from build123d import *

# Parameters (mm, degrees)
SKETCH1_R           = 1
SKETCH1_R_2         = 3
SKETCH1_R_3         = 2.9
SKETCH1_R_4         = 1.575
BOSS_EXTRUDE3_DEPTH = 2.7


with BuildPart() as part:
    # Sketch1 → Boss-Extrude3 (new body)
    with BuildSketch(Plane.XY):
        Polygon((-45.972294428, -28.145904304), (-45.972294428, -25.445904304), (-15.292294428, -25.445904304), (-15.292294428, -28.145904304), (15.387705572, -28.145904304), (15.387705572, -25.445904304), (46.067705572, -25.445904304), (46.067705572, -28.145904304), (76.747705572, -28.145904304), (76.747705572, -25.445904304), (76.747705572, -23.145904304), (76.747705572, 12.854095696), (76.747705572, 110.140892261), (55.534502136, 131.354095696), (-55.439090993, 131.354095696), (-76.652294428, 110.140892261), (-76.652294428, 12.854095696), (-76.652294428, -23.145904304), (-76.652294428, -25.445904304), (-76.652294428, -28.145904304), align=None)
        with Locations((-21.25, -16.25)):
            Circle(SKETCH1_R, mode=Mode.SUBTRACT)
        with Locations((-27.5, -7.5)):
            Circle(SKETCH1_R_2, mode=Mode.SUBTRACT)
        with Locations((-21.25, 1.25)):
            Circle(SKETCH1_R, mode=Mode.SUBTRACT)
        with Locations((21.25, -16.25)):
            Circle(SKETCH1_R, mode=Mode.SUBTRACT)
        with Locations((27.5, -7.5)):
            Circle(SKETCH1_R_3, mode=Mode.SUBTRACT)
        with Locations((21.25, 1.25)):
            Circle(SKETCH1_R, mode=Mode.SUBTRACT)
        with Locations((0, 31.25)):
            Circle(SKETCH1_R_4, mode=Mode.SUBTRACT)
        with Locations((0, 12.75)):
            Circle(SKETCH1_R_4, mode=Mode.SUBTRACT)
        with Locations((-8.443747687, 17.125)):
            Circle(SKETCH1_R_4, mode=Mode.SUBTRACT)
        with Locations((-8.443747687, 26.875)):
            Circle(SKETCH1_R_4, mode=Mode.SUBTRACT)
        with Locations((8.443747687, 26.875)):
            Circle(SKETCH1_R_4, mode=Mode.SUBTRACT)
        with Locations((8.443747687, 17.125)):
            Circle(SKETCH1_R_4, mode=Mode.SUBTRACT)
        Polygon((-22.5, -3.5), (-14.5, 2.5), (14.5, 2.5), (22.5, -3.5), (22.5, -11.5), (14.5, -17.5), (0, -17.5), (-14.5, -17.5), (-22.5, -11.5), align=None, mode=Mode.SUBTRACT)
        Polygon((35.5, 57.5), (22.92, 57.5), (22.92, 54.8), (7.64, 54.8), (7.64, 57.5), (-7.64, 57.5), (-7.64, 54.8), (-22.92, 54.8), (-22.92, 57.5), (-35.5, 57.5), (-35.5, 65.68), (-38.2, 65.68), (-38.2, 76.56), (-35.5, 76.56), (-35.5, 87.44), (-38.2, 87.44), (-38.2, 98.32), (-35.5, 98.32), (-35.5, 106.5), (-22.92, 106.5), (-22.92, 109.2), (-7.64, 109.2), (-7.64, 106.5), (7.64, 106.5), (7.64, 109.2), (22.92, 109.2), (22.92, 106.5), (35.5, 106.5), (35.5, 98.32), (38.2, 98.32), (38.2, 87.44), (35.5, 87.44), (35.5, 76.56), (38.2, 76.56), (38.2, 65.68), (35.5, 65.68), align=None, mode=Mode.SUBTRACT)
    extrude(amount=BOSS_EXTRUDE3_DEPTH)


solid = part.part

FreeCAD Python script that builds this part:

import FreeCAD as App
import Part
import Sketcher
Q = App.Units.Quantity

doc = App.newDocument("Part")
body = doc.addObject("PartDesign::Body", "Body")

sketch1 = body.newObject("Sketcher::SketchObject", "Sketch")
sketch1.AttachmentSupport = (doc.getObject("XY_Plane"), [""])
sketch1.MapMode = "FlatFace"
sketch1.addGeometry([
    Part.LineSegment(App.Vector(-46, -28.1, 0), App.Vector(-46, -25.4, 0)),
    Part.LineSegment(App.Vector(-46, -25.4, 0), App.Vector(-15.3, -25.4, 0)),
    Part.LineSegment(App.Vector(-15.3, -25.4, 0), App.Vector(-15.3, -28.1, 0)),
    Part.LineSegment(App.Vector(-15.3, -28.1, 0), App.Vector(15.4, -28.1, 0)),
    Part.LineSegment(App.Vector(15.4, -28.1, 0), App.Vector(15.4, -25.4, 0)),
    Part.LineSegment(App.Vector(15.4, -25.4, 0), App.Vector(46.1, -25.4, 0)),
    Part.LineSegment(App.Vector(46.1, -25.4, 0), App.Vector(46.1, -28.1, 0)),
    Part.LineSegment(App.Vector(46.1, -28.1, 0), App.Vector(76.7, -28.1, 0)),
    Part.LineSegment(App.Vector(76.7, -28.1, 0), App.Vector(76.7, 110.1, 0)),
    Part.LineSegment(App.Vector(76.7, 110.1, 0), App.Vector(55.5, 131.4, 0)),
    Part.LineSegment(App.Vector(55.5, 131.4, 0), App.Vector(-55.4, 131.4, 0)),
    Part.LineSegment(App.Vector(-55.4, 131.4, 0), App.Vector(-76.7, 110.1, 0)),
    Part.LineSegment(App.Vector(-76.7, 110.1, 0), App.Vector(-76.7, -28.1, 0)),
    Part.LineSegment(App.Vector(-76.7, -28.1, 0), App.Vector(-46, -28.1, 0)),
    Part.Circle(App.Vector(-21.2, -16.2, 0), App.Vector(0, 0, 1), 1),
    Part.Circle(App.Vector(-27.5, -7.5, 0), App.Vector(0, 0, 1), 3),
    Part.Circle(App.Vector(-21.2, 1.2, 0), App.Vector(0, 0, 1), 1),
    Part.LineSegment(App.Vector(-22.5, -11.5, 0), App.Vector(-22.5, -3.5, 0)),
    Part.LineSegment(App.Vector(-22.5, -3.5, 0), App.Vector(-14.5, 2.5, 0)),
    Part.LineSegment(App.Vector(-14.5, 2.5, 0), App.Vector(14.5, 2.5, 0)),
    Part.LineSegment(App.Vector(14.5, 2.5, 0), App.Vector(22.5, -3.5, 0)),
    Part.LineSegment(App.Vector(22.5, -3.5, 0), App.Vector(22.5, -11.5, 0)),
    Part.LineSegment(App.Vector(22.5, -11.5, 0), App.Vector(14.5, -17.5, 0)),
    Part.LineSegment(App.Vector(14.5, -17.5, 0), App.Vector(-14.5, -17.5, 0)),
    Part.LineSegment(App.Vector(-14.5, -17.5, 0), App.Vector(-22.5, -11.5, 0)),
    Part.Circle(App.Vector(0, 12.8, 0), App.Vector(0, 0, 1), 1.6),
    Part.Circle(App.Vector(-8.4, 17.1, 0), App.Vector(0, 0, 1), 1.6),
    Part.Circle(App.Vector(-8.4, 26.9, 0), App.Vector(0, 0, 1), 1.6),
    Part.Circle(App.Vector(0, 31.2, 0), App.Vector(0, 0, 1), 1.6),
    Part.Circle(App.Vector(21.2, -16.2, 0), App.Vector(0, 0, 1), 1),
    Part.Circle(App.Vector(27.5, -7.5, 0), App.Vector(0, 0, 1), 2.9),
    Part.Circle(App.Vector(21.2, 1.2, 0), App.Vector(0, 0, 1), 1),
    Part.Circle(App.Vector(8.4, 17.1, 0), App.Vector(0, 0, 1), 1.6),
    Part.Circle(App.Vector(8.4, 26.9, 0), App.Vector(0, 0, 1), 1.6),
    Part.LineSegment(App.Vector(35.5, 65.7, 0), App.Vector(35.5, 57.5, 0)),
    Part.LineSegment(App.Vector(35.5, 57.5, 0), App.Vector(22.9, 57.5, 0)),
    Part.LineSegment(App.Vector(22.9, 57.5, 0), App.Vector(22.9, 54.8, 0)),
    Part.LineSegment(App.Vector(22.9, 54.8, 0), App.Vector(7.6, 54.8, 0)),
    Part.LineSegment(App.Vector(7.6, 54.8, 0), App.Vector(7.6, 57.5, 0)),
    Part.LineSegment(App.Vector(7.6, 57.5, 0), App.Vector(-7.6, 57.5, 0)),
    Part.LineSegment(App.Vector(-7.6, 57.5, 0), App.Vector(-7.6, 54.8, 0)),
    Part.LineSegment(App.Vector(-7.6, 54.8, 0), App.Vector(-22.9, 54.8, 0)),
    Part.LineSegment(App.Vector(-22.9, 54.8, 0), App.Vector(-22.9, 57.5, 0)),
    Part.LineSegment(App.Vector(-22.9, 57.5, 0), App.Vector(-35.5, 57.5, 0)),
    Part.LineSegment(App.Vector(-35.5, 57.5, 0), App.Vector(-35.5, 65.7, 0)),
    Part.LineSegment(App.Vector(-35.5, 65.7, 0), App.Vector(-38.2, 65.7, 0)),
    Part.LineSegment(App.Vector(-38.2, 65.7, 0), App.Vector(-38.2, 76.6, 0)),
    Part.LineSegment(App.Vector(-38.2, 76.6, 0), App.Vector(-35.5, 76.6, 0)),
    Part.LineSegment(App.Vector(-35.5, 76.6, 0), App.Vector(-35.5, 87.4, 0)),
    Part.LineSegment(App.Vector(-35.5, 87.4, 0), App.Vector(-38.2, 87.4, 0)),
    Part.LineSegment(App.Vector(-38.2, 87.4, 0), App.Vector(-38.2, 98.3, 0)),
    Part.LineSegment(App.Vector(-38.2, 98.3, 0), App.Vector(-35.5, 98.3, 0)),
    Part.LineSegment(App.Vector(-35.5, 98.3, 0), App.Vector(-35.5, 106.5, 0)),
    Part.LineSegment(App.Vector(-35.5, 106.5, 0), App.Vector(-22.9, 106.5, 0)),
    Part.LineSegment(App.Vector(-22.9, 106.5, 0), App.Vector(-22.9, 109.2, 0)),
    Part.LineSegment(App.Vector(-22.9, 109.2, 0), App.Vector(-7.6, 109.2, 0)),
    Part.LineSegment(App.Vector(-7.6, 109.2, 0), App.Vector(-7.6, 106.5, 0)),
    Part.LineSegment(App.Vector(-7.6, 106.5, 0), App.Vector(7.6, 106.5, 0)),
    Part.LineSegment(App.Vector(7.6, 106.5, 0), App.Vector(7.6, 109.2, 0)),
    Part.LineSegment(App.Vector(7.6, 109.2, 0), App.Vector(22.9, 109.2, 0)),
    Part.LineSegment(App.Vector(22.9, 109.2, 0), App.Vector(22.9, 106.5, 0)),
    Part.LineSegment(App.Vector(22.9, 106.5, 0), App.Vector(35.5, 106.5, 0)),
    Part.LineSegment(App.Vector(35.5, 106.5, 0), App.Vector(35.5, 98.3, 0)),
    Part.LineSegment(App.Vector(35.5, 98.3, 0), App.Vector(38.2, 98.3, 0)),
    Part.LineSegment(App.Vector(38.2, 98.3, 0), App.Vector(38.2, 87.4, 0)),
    Part.LineSegment(App.Vector(38.2, 87.4, 0), App.Vector(35.5, 87.4, 0)),
    Part.LineSegment(App.Vector(35.5, 87.4, 0), App.Vector(35.5, 76.6, 0)),
    Part.LineSegment(App.Vector(35.5, 76.6, 0), App.Vector(38.2, 76.6, 0)),
    Part.LineSegment(App.Vector(38.2, 76.6, 0), App.Vector(38.2, 65.7, 0)),
    Part.LineSegment(App.Vector(38.2, 65.7, 0), App.Vector(35.5, 65.7, 0)),
], False)
sketch1.addConstraint([
    Sketcher.Constraint("Coincident", 0, 2, 1, 1),
    Sketcher.Constraint("Coincident", 1, 2, 2, 1),
    Sketcher.Constraint("Coincident", 2, 2, 3, 1),
    Sketcher.Constraint("Coincident", 3, 2, 4, 1),
    Sketcher.Constraint("Coincident", 4, 2, 5, 1),
    Sketcher.Constraint("Coincident", 5, 2, 6, 1),
    Sketcher.Constraint("Coincident", 6, 2, 7, 1),
    Sketcher.Constraint("Coincident", 7, 2, 8, 1),
    Sketcher.Constraint("Coincident", 8, 2, 9, 1),
    Sketcher.Constraint("Coincident", 9, 2, 10, 1),
    Sketcher.Constraint("Coincident", 10, 2, 11, 1),
    Sketcher.Constraint("Coincident", 11, 2, 12, 1),
    Sketcher.Constraint("Coincident", 12, 2, 13, 1),
    Sketcher.Constraint("Coincident", 13, 2, 0, 1),
    Sketcher.Constraint("Coincident", 17, 2, 18, 1),
    Sketcher.Constraint("Coincident", 18, 2, 19, 1),
    Sketcher.Constraint("Coincident", 19, 2, 20, 1),
    Sketcher.Constraint("Coincident", 20, 2, 21, 1),
    Sketcher.Constraint("Coincident", 21, 2, 22, 1),
    Sketcher.Constraint("Coincident", 22, 2, 23, 1),
    Sketcher.Constraint("Coincident", 23, 2, 24, 1),
    Sketcher.Constraint("Coincident", 24, 2, 17, 1),
    Sketcher.Constraint("Coincident", 34, 2, 35, 1),
    Sketcher.Constraint("Coincident", 35, 2, 36, 1),
    Sketcher.Constraint("Coincident", 36, 2, 37, 1),
    Sketcher.Constraint("Coincident", 37, 2, 38, 1),
    Sketcher.Constraint("Coincident", 38, 2, 39, 1),
    Sketcher.Constraint("Coincident", 39, 2, 40, 1),
    Sketcher.Constraint("Coincident", 40, 2, 41, 1),
    Sketcher.Constraint("Coincident", 41, 2, 42, 1),
    Sketcher.Constraint("Coincident", 42, 2, 43, 1),
    Sketcher.Constraint("Coincident", 43, 2, 44, 1),
    Sketcher.Constraint("Coincident", 44, 2, 45, 1),
    Sketcher.Constraint("Coincident", 45, 2, 46, 1),
    Sketcher.Constraint("Coincident", 46, 2, 47, 1),
    Sketcher.Constraint("Coincident", 47, 2, 48, 1),
    Sketcher.Constraint("Coincident", 48, 2, 49, 1),
    Sketcher.Constraint("Coincident", 49, 2, 50, 1),
    Sketcher.Constraint("Coincident", 50, 2, 51, 1),
    Sketcher.Constraint("Coincident", 51, 2, 52, 1),
    Sketcher.Constraint("Coincident", 52, 2, 53, 1),
    Sketcher.Constraint("Coincident", 53, 2, 54, 1),
    Sketcher.Constraint("Coincident", 54, 2, 55, 1),
    Sketcher.Constraint("Coincident", 55, 2, 56, 1),
    Sketcher.Constraint("Coincident", 56, 2, 57, 1),
    Sketcher.Constraint("Coincident", 57, 2, 58, 1),
    Sketcher.Constraint("Coincident", 58, 2, 59, 1),
    Sketcher.Constraint("Coincident", 59, 2, 60, 1),
    Sketcher.Constraint("Coincident", 60, 2, 61, 1),
    Sketcher.Constraint("Coincident", 61, 2, 62, 1),
    Sketcher.Constraint("Coincident", 62, 2, 63, 1),
    Sketcher.Constraint("Coincident", 63, 2, 64, 1),
    Sketcher.Constraint("Coincident", 64, 2, 65, 1),
    Sketcher.Constraint("Coincident", 65, 2, 66, 1),
    Sketcher.Constraint("Coincident", 66, 2, 67, 1),
    Sketcher.Constraint("Coincident", 67, 2, 68, 1),
    Sketcher.Constraint("Coincident", 68, 2, 69, 1),
    Sketcher.Constraint("Coincident", 69, 2, 34, 1),
    Sketcher.Constraint("Vertical", 0),
    Sketcher.Constraint("Horizontal", 1),
    Sketcher.Constraint("Vertical", 2),
    Sketcher.Constraint("Horizontal", 3),
    Sketcher.Constraint("Vertical", 4),
    Sketcher.Constraint("Horizontal", 5),
    Sketcher.Constraint("Vertical", 6),
    Sketcher.Constraint("Horizontal", 7),
    Sketcher.Constraint("Vertical", 8),
    Sketcher.Constraint("Horizontal", 10),
    Sketcher.Constraint("Vertical", 12),
    Sketcher.Constraint("Horizontal", 13),
    Sketcher.Constraint("Vertical", 17),
    Sketcher.Constraint("Horizontal", 19),
    Sketcher.Constraint("Vertical", 21),
    Sketcher.Constraint("Horizontal", 23),
    Sketcher.Constraint("Vertical", 34),
    Sketcher.Constraint("Horizontal", 35),
    Sketcher.Constraint("Vertical", 36),
    Sketcher.Constraint("Horizontal", 37),
    Sketcher.Constraint("Vertical", 38),
    Sketcher.Constraint("Horizontal", 39),
    Sketcher.Constraint("Vertical", 40),
    Sketcher.Constraint("Horizontal", 41),
    Sketcher.Constraint("Vertical", 42),
    Sketcher.Constraint("Horizontal", 43),
    Sketcher.Constraint("Vertical", 44),
    Sketcher.Constraint("Horizontal", 45),
    Sketcher.Constraint("Vertical", 46),
    Sketcher.Constraint("Horizontal", 47),
    Sketcher.Constraint("Vertical", 48),
    Sketcher.Constraint("Horizontal", 49),
    Sketcher.Constraint("Vertical", 50),
    Sketcher.Constraint("Horizontal", 51),
    Sketcher.Constraint("Vertical", 52),
    Sketcher.Constraint("Horizontal", 53),
    Sketcher.Constraint("Vertical", 54),
    Sketcher.Constraint("Horizontal", 55),
    Sketcher.Constraint("Vertical", 56),
    Sketcher.Constraint("Horizontal", 57),
    Sketcher.Constraint("Vertical", 58),
    Sketcher.Constraint("Horizontal", 59),
    Sketcher.Constraint("Vertical", 60),
    Sketcher.Constraint("Horizontal", 61),
    Sketcher.Constraint("Vertical", 62),
    Sketcher.Constraint("Horizontal", 63),
    Sketcher.Constraint("Vertical", 64),
    Sketcher.Constraint("Horizontal", 65),
    Sketcher.Constraint("Vertical", 66),
    Sketcher.Constraint("Horizontal", 67),
    Sketcher.Constraint("Vertical", 68),
    Sketcher.Constraint("Horizontal", 69),
    Sketcher.Constraint("Equal", 14, 16),
    Sketcher.Constraint("Equal", 25, 26),
    Sketcher.Constraint("Equal", 26, 27),
    Sketcher.Constraint("Equal", 27, 28),
    Sketcher.Constraint("Equal", 16, 29),
    Sketcher.Constraint("Equal", 29, 31),
    Sketcher.Constraint("Equal", 28, 32),
    Sketcher.Constraint("Equal", 32, 33),
    Sketcher.Constraint("Symmetric", 14, 3, 29, 3, -2),
    Sketcher.Constraint("Symmetric", 15, 3, 30, 3, -2),
    Sketcher.Constraint("Symmetric", 16, 3, 31, 3, -2),
    Sketcher.Constraint("Symmetric", 26, 3, 32, 3, -2),
    Sketcher.Constraint("Symmetric", 27, 3, 33, 3, -2),
    Sketcher.Constraint("Symmetric", 17, 2, 20, 2, -2),
    Sketcher.Constraint("Symmetric", 37, 2, 40, 2, -2),
    Sketcher.Constraint("Symmetric", 35, 2, 42, 2, -2),
    Sketcher.Constraint("Symmetric", 55, 2, 58, 2, -2),
    Sketcher.Constraint("Symmetric", 53, 2, 60, 2, -2),
    Sketcher.Constraint("Symmetric", 51, 2, 62, 2, -2),
    Sketcher.Constraint("Symmetric", 49, 2, 64, 2, -2),
    Sketcher.Constraint("Symmetric", 47, 2, 66, 2, -2),
    Sketcher.Constraint("Symmetric", 45, 2, 68, 2, -2),
    Sketcher.Constraint("PointOnObject", 25, 3, -2),
    Sketcher.Constraint("PointOnObject", 28, 3, -2),
    Sketcher.Constraint("Perpendicular", 9, 11),
    Sketcher.Constraint("Parallel", 18, 22),
    Sketcher.Constraint("Parallel", 20, 24),
    Sketcher.Constraint("Horizontal", 1, 2, 4, 2),
    Sketcher.Constraint("Horizontal", 3, 2, 6, 2),
    Sketcher.Constraint("Horizontal", 8, 2, 11, 2),
    Sketcher.Constraint("Horizontal", 7, 2, 12, 2),
    Sketcher.Constraint("Horizontal", 21, 2, 24, 2),
    Sketcher.Constraint("Horizontal", 35, 2, 38, 2),
    Sketcher.Constraint("Horizontal", 53, 2, 56, 2),
    Sketcher.Constraint("Vertical", 14, 3, 16, 3),
    Sketcher.Constraint("Vertical", 26, 3, 27, 3),
    Sketcher.Constraint("Vertical", 19, 2, 22, 2),
    Sketcher.Constraint("Vertical", 18, 2, 23, 2),
    Sketcher.Constraint("Vertical", 44, 2, 47, 2),
    Sketcher.Constraint("Vertical", 46, 2, 49, 2),
    Sketcher.Constraint("Vertical", 48, 2, 51, 2),
    Sketcher.Constraint("Vertical", 42, 2, 53, 2),
    Sketcher.Constraint("Vertical", 40, 2, 55, 2),
    Sketcher.Constraint("Vertical", 34, 2, 61, 2),
    Sketcher.Constraint("Equal", 1, 3),
    Sketcher.Constraint("Equal", 3, 5),
    Sketcher.Constraint("Equal", 5, 7),
    Sketcher.Constraint("Equal", 7, 13),
    Sketcher.Constraint("Equal", 37, 39),
    Sketcher.Constraint("Equal", 69, 0),
    Sketcher.Constraint("Equal", 6, 36),
    Sketcher.Constraint("Equal", 46, 48),
    Sketcher.Constraint("Equal", 48, 50),
    Sketcher.Constraint("Equal", 44, 52),
    Sketcher.Constraint("Equal", 42, 54),
    Sketcher.Constraint("Equal", 9, 11),
    Sketcher.Constraint("Diameter", 14, Q("2 mm")),
    Sketcher.Constraint("Diameter", 15, Q("6 mm")),
    Sketcher.Constraint("Diameter", 30, Q("5.8 mm")),
    Sketcher.Constraint("Diameter", 25, Q("3.15 mm")),
    Sketcher.Constraint("DistanceX", 19, 1, 19, 2, Q("29 mm")),
    Sketcher.Constraint("DistanceY", 17, 1, 17, 2, Q("8 mm")),
    Sketcher.Constraint("Distance", 9, Q("30 mm")),
    Sketcher.Constraint("Distance", 18, Q("10 mm")),
    Sketcher.Constraint("DistanceX", 45, 2, 45, 1, Q("2.7 mm")),
    Sketcher.Constraint("DistanceX", 1, 1, 1, 2, Q("30.68 mm")),
    Sketcher.Constraint("DistanceX", 35, 2, 35, 1, Q("12.58 mm")),
    Sketcher.Constraint("DistanceX", 37, 2, 37, 1, Q("15.28 mm")),
    Sketcher.Constraint("DistanceY", 34, 2, 34, 1, Q("8.18 mm")),
    Sketcher.Constraint("DistanceY", 46, 1, 46, 2, Q("10.88 mm")),
    Sketcher.Constraint("DistanceX", 15, 3, -1, 1, Q("27.5 mm")),
    Sketcher.Constraint("DistanceY", 15, 3, -1, 1, Q("7.5 mm")),
    Sketcher.Constraint("DistanceX", 17, 2, -1, 1, Q("22.5 mm")),
    Sketcher.Constraint("DistanceY", 17, 2, -1, 1, Q("3.5 mm")),
    Sketcher.Constraint("DistanceY", -1, 1, 34, 2, Q("57.5 mm")),
    Sketcher.Constraint("DistanceX", 14, 3, -1, 1, Q("21.25 mm")),
    Sketcher.Constraint("DistanceY", 14, 3, -1, 1, Q("16.25 mm")),
    Sketcher.Constraint("DistanceY", -1, 1, 16, 3, Q("1.25 mm")),
    Sketcher.Constraint("DistanceY", -1, 1, 25, 3, Q("12.75 mm")),
    Sketcher.Constraint("DistanceY", -1, 1, 28, 3, Q("31.25 mm")),
    Sketcher.Constraint("DistanceY", -1, 1, 26, 3, Q("17.125 mm")),
    Sketcher.Constraint("DistanceY", -1, 1, 27, 3, Q("26.875 mm")),
    Sketcher.Constraint("DistanceY", 8, 1, 8, 2, Q("138.286797 mm")),
    Sketcher.Constraint("DistanceX", 10, 2, -1, 1, Q("55.439091 mm")),
    Sketcher.Constraint("DistanceX", 26, 3, -1, 1, Q("8.443748 mm")),
    Sketcher.Constraint("DistanceY", 0, 2, -1, 1, Q("25.445904 mm")),
])
pad1 = body.newObject("PartDesign::Pad", "Pad")
pad1.Profile = sketch1
pad1.Length = 2.7

doc.recompute()
